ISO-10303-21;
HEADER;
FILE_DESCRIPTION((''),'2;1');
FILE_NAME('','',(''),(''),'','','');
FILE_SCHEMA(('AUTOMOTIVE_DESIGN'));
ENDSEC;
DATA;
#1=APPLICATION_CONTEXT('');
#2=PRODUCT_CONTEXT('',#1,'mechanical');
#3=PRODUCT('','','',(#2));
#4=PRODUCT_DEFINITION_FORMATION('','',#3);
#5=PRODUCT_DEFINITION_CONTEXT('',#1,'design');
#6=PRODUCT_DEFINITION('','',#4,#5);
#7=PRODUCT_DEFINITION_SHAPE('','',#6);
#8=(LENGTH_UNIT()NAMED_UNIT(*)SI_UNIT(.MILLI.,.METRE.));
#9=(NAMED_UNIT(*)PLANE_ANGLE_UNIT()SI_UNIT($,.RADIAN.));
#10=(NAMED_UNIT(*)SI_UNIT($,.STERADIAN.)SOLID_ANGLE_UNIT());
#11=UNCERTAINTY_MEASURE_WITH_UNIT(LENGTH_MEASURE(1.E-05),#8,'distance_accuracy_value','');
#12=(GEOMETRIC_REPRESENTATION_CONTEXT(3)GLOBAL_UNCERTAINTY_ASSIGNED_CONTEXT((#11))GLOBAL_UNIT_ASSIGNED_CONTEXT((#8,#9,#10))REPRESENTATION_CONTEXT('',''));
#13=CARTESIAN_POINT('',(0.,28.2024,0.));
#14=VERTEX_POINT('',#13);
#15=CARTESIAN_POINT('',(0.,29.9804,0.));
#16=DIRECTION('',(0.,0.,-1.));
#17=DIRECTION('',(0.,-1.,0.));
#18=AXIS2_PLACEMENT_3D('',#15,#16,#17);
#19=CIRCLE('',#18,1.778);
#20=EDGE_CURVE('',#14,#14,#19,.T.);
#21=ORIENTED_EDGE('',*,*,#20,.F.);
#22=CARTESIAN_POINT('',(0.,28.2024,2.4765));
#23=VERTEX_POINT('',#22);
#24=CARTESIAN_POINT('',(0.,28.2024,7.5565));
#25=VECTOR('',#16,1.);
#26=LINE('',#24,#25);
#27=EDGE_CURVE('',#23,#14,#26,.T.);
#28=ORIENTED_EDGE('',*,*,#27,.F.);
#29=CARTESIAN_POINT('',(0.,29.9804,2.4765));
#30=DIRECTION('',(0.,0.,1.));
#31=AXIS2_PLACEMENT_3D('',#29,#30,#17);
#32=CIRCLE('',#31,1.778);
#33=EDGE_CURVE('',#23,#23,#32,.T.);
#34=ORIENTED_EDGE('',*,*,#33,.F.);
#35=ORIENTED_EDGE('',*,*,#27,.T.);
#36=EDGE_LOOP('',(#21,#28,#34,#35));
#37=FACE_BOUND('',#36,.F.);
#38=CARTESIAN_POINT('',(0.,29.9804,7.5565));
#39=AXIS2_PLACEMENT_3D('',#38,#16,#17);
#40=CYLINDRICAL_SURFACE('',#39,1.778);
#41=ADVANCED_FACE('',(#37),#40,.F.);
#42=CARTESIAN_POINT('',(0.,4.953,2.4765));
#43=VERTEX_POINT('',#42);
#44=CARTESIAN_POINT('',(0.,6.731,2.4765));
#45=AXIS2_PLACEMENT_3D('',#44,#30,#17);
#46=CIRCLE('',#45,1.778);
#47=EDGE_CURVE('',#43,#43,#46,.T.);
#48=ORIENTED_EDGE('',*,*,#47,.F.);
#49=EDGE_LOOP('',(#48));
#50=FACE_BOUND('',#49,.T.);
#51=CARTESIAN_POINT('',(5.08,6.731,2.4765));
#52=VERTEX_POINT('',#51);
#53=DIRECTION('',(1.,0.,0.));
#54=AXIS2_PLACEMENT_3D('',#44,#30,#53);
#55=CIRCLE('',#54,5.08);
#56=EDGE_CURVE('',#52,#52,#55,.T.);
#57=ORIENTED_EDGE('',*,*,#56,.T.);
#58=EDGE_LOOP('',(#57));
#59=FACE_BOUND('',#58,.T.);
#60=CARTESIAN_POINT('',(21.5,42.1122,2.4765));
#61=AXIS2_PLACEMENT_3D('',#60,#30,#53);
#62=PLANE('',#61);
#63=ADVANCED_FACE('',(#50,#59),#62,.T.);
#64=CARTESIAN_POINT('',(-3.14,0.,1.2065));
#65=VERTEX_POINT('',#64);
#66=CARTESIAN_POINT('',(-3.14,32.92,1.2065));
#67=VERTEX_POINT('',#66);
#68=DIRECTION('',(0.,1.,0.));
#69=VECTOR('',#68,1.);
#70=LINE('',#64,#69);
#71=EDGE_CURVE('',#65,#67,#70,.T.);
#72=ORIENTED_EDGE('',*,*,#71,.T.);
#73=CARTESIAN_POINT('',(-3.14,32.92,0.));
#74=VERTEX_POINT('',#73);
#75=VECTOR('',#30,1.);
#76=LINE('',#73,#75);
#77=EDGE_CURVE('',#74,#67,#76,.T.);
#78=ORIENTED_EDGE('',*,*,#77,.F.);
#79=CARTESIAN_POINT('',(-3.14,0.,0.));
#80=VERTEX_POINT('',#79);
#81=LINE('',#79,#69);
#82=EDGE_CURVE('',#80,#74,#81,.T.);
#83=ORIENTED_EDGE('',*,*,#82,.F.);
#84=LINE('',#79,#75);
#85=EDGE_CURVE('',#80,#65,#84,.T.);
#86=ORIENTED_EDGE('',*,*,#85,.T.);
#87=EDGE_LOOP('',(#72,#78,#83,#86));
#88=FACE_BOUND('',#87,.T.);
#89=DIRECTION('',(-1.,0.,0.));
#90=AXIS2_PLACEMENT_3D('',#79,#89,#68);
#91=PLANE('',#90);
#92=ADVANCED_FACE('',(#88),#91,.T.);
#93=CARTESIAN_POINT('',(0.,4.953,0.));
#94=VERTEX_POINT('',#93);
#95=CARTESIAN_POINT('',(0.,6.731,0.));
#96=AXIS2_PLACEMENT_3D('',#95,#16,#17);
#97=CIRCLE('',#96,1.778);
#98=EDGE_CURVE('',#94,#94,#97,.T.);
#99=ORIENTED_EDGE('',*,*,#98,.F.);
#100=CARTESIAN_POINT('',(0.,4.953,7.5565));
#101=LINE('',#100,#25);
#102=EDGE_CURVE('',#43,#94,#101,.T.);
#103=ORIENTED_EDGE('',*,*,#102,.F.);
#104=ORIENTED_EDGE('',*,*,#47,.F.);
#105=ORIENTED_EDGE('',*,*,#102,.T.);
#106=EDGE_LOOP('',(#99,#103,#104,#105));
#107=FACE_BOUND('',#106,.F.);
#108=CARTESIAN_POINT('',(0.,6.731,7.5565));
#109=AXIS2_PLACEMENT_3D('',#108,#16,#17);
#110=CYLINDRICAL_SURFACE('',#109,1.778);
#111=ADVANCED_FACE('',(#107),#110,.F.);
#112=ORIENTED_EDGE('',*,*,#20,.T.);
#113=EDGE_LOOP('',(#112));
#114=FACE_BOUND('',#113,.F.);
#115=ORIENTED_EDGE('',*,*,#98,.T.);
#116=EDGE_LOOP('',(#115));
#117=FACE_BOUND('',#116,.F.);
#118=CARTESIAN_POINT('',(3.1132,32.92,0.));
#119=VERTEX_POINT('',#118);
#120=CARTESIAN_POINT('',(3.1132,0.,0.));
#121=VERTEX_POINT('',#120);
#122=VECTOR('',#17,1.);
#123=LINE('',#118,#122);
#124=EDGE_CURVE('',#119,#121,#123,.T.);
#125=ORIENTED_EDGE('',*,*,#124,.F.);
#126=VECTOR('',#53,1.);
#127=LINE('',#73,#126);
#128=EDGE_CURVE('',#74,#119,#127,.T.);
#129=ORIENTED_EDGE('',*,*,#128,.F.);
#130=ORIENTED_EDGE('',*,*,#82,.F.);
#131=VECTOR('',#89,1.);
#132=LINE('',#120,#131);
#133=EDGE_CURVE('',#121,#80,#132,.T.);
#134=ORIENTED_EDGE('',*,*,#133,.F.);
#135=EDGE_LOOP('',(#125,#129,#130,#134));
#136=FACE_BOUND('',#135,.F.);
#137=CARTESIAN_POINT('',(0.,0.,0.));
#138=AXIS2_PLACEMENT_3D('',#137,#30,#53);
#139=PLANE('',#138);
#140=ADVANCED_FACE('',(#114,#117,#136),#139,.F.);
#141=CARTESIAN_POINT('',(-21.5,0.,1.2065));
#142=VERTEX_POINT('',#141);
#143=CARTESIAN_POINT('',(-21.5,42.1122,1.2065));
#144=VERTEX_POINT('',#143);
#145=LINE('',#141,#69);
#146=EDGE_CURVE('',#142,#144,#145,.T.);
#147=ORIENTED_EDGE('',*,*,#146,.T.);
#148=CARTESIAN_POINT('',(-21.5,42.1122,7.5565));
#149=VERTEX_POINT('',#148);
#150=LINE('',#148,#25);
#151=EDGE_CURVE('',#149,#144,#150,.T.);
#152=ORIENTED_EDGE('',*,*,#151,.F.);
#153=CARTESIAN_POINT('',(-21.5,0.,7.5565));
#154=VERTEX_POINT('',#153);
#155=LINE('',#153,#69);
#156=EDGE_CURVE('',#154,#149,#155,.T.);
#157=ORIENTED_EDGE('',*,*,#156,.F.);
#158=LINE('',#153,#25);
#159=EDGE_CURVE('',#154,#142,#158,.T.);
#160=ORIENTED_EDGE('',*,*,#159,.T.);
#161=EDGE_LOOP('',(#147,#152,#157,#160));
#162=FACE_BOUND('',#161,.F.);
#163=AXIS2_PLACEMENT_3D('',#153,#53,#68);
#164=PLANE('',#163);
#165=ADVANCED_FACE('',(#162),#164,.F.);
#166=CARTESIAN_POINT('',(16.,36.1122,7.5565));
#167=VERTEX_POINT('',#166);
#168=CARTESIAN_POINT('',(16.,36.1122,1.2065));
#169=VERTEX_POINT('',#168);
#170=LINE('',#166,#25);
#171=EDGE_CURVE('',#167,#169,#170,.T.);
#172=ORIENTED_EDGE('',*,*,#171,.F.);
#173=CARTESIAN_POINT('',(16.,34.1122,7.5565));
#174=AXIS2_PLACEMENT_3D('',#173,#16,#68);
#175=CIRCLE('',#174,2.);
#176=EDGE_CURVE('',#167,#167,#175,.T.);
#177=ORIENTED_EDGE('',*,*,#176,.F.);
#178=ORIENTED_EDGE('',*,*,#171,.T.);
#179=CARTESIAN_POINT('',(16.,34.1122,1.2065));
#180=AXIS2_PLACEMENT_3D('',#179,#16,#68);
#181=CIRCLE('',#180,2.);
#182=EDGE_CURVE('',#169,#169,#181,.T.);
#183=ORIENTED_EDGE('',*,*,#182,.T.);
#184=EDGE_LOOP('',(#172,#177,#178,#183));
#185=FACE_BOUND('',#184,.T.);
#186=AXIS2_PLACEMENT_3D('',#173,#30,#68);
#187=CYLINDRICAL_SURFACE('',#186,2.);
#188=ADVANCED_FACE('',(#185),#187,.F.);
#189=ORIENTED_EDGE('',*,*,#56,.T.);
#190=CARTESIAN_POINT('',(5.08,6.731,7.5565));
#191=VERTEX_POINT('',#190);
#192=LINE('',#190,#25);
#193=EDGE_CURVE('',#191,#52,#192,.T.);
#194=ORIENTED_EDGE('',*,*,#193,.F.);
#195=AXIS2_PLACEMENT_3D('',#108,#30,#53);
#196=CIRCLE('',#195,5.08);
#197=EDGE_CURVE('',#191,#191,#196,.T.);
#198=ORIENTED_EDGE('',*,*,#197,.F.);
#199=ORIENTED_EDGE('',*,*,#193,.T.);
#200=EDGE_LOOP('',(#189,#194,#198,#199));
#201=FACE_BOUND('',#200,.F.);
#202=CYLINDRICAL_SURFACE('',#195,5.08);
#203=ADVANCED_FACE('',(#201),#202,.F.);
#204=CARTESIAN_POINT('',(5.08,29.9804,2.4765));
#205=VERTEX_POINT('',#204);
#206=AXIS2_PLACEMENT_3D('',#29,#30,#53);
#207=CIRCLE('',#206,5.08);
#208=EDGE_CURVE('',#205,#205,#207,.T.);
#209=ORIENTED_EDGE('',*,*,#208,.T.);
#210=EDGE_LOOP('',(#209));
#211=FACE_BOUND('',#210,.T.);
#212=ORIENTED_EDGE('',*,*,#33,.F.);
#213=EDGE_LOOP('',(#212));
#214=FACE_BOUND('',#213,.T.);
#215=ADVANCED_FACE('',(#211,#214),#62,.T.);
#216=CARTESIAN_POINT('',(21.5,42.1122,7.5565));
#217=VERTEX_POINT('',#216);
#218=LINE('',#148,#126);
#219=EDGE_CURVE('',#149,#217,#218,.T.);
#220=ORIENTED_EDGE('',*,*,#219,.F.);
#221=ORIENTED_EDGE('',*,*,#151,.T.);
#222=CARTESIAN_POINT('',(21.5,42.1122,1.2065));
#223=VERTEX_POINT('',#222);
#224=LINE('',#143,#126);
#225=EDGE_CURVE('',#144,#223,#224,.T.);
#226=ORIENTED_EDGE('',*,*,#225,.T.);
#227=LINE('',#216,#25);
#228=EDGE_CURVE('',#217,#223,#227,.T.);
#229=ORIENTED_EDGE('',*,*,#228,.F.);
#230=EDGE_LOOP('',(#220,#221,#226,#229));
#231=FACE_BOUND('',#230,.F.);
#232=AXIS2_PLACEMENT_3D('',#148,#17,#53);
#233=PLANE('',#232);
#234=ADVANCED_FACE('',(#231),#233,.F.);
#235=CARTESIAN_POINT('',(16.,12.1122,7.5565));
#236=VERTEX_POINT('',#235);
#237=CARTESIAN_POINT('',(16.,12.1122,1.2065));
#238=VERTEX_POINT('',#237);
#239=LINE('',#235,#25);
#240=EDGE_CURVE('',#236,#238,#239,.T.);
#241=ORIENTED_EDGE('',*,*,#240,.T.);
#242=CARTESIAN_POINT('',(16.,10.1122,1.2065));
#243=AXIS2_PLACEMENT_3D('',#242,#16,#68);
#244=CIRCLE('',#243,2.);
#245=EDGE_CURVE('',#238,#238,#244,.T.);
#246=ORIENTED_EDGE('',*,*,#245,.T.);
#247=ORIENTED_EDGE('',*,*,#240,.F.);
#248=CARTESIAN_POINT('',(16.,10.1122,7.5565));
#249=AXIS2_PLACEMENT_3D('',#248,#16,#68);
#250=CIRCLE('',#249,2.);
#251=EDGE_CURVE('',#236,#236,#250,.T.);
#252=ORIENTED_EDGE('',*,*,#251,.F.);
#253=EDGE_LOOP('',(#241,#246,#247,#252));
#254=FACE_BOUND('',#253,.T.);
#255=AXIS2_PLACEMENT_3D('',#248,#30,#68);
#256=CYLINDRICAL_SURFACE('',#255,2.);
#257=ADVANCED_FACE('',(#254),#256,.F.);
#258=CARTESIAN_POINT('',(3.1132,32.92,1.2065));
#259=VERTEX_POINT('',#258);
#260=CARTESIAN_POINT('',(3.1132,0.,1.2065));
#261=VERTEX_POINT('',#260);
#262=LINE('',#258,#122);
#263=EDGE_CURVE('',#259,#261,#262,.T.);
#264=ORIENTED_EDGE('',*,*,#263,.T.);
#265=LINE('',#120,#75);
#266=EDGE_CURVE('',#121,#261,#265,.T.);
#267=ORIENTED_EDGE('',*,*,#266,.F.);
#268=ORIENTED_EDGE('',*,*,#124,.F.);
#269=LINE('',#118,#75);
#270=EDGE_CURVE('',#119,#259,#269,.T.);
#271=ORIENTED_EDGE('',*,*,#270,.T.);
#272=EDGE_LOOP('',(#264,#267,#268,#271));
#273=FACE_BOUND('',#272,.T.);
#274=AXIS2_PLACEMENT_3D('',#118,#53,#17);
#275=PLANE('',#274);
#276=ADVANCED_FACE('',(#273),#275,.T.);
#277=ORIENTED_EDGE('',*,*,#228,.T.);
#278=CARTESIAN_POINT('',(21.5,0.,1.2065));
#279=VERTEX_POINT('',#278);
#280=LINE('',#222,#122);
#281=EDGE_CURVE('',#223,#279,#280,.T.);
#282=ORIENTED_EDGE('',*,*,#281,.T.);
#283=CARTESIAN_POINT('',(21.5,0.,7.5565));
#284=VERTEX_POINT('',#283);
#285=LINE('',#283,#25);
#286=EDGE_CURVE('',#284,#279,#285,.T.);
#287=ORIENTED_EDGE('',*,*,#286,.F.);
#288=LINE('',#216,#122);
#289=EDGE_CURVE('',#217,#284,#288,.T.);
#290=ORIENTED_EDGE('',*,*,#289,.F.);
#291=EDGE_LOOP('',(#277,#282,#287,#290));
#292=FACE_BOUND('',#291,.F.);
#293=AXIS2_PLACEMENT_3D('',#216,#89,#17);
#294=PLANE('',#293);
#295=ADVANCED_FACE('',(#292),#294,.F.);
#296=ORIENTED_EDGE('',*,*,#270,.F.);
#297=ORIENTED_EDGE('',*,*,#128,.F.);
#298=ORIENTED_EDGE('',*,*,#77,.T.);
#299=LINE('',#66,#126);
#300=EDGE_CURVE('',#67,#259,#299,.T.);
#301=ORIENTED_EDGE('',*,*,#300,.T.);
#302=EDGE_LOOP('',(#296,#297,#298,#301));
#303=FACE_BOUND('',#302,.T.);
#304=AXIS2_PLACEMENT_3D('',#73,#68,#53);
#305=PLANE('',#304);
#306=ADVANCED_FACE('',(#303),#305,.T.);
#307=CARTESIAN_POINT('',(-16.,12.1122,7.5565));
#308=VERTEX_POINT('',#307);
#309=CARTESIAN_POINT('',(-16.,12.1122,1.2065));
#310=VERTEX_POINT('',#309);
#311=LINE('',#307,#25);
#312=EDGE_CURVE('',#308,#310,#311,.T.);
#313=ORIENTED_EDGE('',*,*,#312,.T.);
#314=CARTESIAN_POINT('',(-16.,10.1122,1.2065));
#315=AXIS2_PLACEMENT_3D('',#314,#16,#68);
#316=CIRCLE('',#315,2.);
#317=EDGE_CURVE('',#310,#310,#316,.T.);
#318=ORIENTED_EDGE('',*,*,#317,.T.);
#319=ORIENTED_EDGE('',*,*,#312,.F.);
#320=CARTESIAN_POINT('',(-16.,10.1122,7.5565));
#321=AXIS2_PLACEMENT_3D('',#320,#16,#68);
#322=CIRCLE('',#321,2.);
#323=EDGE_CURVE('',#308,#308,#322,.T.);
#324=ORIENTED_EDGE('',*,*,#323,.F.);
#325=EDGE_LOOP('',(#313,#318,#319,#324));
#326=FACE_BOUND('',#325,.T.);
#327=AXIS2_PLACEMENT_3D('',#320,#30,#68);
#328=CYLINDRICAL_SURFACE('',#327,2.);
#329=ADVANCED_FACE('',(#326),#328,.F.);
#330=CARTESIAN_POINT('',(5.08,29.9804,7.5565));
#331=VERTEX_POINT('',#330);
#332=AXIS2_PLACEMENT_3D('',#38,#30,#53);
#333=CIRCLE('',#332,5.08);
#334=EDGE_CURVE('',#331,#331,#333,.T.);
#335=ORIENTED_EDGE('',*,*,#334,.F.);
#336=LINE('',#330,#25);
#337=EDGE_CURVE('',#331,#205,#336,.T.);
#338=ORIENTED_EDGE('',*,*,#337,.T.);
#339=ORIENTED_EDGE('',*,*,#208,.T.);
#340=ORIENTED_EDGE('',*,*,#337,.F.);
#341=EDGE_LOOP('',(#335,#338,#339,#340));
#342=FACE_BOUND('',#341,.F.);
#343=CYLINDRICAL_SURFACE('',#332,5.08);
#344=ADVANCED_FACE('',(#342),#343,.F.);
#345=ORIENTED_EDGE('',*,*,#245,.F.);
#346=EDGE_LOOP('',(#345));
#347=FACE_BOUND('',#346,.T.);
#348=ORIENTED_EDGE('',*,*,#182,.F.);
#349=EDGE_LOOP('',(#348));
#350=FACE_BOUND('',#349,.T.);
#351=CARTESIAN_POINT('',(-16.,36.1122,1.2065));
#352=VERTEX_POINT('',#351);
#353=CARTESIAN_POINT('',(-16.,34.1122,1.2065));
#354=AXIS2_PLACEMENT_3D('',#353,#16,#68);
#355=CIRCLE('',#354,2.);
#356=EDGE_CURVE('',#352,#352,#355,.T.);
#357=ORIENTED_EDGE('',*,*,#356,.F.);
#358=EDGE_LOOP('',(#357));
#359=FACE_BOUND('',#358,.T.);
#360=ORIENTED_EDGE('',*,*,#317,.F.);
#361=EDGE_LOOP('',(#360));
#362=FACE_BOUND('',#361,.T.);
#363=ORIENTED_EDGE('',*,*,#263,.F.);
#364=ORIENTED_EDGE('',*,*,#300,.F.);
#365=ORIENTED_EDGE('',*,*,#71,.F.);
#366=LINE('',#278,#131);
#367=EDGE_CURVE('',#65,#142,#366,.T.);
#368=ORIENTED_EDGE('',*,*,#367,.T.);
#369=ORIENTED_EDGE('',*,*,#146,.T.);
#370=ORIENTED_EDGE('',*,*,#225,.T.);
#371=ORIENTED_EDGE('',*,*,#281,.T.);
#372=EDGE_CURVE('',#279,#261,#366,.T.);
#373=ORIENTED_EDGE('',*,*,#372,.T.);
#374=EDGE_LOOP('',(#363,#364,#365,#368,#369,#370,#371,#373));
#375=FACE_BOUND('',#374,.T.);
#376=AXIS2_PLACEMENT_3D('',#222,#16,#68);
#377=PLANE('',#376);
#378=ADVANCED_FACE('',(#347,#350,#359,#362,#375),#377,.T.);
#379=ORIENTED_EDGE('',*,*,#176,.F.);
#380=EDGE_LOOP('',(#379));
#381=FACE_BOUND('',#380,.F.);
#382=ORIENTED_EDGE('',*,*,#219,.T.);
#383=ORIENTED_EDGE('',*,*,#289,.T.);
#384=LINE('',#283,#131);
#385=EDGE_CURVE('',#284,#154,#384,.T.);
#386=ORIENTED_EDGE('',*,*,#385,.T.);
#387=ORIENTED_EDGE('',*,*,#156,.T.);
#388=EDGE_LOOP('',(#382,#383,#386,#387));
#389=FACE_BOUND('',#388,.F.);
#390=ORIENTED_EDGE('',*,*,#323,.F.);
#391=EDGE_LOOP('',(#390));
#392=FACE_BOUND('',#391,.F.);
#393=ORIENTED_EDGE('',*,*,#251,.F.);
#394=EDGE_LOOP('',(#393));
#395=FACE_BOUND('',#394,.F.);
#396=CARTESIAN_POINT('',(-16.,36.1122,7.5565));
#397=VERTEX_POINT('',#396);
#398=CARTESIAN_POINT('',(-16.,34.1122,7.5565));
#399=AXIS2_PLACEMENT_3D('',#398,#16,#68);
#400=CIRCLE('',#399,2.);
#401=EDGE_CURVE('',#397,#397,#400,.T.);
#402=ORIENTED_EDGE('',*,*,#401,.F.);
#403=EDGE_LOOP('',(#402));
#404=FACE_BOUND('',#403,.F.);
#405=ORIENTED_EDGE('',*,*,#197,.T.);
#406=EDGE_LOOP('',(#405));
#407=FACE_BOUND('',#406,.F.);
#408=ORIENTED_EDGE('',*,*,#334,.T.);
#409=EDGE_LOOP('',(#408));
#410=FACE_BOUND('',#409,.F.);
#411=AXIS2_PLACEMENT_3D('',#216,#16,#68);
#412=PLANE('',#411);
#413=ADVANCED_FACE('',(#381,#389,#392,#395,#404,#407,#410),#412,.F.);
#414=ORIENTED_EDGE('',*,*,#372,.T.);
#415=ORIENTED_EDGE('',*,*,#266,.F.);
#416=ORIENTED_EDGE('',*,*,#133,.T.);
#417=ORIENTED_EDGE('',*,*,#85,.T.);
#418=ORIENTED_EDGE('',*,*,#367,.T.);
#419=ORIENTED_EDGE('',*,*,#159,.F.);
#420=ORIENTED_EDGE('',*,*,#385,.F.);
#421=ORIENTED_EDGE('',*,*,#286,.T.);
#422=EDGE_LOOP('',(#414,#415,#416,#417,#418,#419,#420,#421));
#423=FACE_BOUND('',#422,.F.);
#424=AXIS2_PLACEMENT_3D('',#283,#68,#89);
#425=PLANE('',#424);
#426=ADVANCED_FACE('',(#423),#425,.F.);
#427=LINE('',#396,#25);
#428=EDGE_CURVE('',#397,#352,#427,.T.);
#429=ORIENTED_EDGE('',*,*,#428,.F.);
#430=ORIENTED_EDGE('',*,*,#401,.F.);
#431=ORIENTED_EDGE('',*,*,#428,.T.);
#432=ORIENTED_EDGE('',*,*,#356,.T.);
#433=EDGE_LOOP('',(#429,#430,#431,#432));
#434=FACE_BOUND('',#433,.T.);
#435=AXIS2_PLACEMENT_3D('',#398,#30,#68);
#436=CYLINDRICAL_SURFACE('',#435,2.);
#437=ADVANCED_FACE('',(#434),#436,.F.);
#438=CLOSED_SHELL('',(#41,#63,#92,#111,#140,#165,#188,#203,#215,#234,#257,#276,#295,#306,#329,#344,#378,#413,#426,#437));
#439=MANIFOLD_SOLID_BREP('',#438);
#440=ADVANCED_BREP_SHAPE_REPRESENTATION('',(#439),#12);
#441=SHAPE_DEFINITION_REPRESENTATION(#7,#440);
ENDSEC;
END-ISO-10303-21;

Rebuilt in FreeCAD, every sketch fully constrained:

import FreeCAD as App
import Part
import Sketcher

V = App.Vector
Q = App.Units.Quantity


def add_polygon(sketch, points):
    """Adds a closed chain of lines whose ends are joined by coincident constraints."""
    first, n = sketch.GeometryCount, len(points)
    for a, b in zip(points, points[1:] + points[:1]):
        sketch.addGeometry(Part.LineSegment(App.Vector(*a, 0), App.Vector(*b, 0)), False)
    for i in range(n):
        sketch.addConstraint(Sketcher.Constraint("Coincident", first + i, 2, first + (i + 1) % n, 1))

doc = App.newDocument("Part")
params = doc.addObject("Spreadsheet::Sheet", "Params")
for row, (alias, value) in enumerate([
    ("pad1_length", "0.25 in"),
    ("pad2_length", "0.0475 in"),
    ("sketch3_diameter", "0.14 in"),
    ("hole_diameter", "0.14 in"),
    ("sketch4_diameter", "0.4 in"),
    ("sketch4_diameter2", "0.14 in"),
    ("pocket1_length", "0.2 in"),
], start=1):
    params.set(f"A{row}", alias)
    params.set(f"B{row}", "=" + value)
    params.setAlias(f"B{row}", alias)

body = doc.addObject("PartDesign::Body", "Body")

# Sketch on XY plane
sketch1 = body.newObject("Sketcher::SketchObject", "Sketch")
sketch1.AttachmentSupport = (doc.getObject("XY_Plane"), [""])
sketch1.MapMode = "FlatFace"
sketch1.AttachmentOffset = App.Placement(V(0, 0, 0.2975 * 25.4), App.Rotation())
add_polygon(sketch1, [(21.5, 0), (-21.5, 0), (-21.5, 42.1122), (21.5, 42.1122)])  # lines 0-3
sketch1.addGeometry(Part.Circle(V(-16, 10.1122, 0), V(0, 0, 1), 2), False)  # 4
sketch1.addGeometry(Part.Circle(V(-16, 34.1122, 0), V(0, 0, 1), 2), False)  # 5
sketch1.addGeometry(Part.Circle(V(16, 10.1122, 0), V(0, 0, 1), 2), False)  # 6
sketch1.addGeometry(Part.Circle(V(16, 34.1122, 0), V(0, 0, 1), 2), False)  # 7
sketch1.addConstraint([
    Sketcher.Constraint("Horizontal", 0),
    Sketcher.Constraint("Vertical", 1),
    Sketcher.Constraint("Horizontal", 2),
    Sketcher.Constraint("Vertical", 3),
    Sketcher.Constraint("Equal", 4, 5),
    Sketcher.Constraint("Equal", 5, 6),
    Sketcher.Constraint("Equal", 6, 7),
    Sketcher.Constraint("Symmetric", 0, 2, 3, 2, -1, 1),
    Sketcher.Constraint("Symmetric", 4, 3, 6, 3, -2),
    Sketcher.Constraint("Symmetric", 5, 3, 7, 3, -2),
    Sketcher.Constraint("Vertical", 4, 3, 5, 3),
    Sketcher.Constraint("Diameter", 4, Q("4 mm")),
    Sketcher.Constraint("DistanceY", -1, 1, 5, 3, Q("1.343 in")),
    Sketcher.Constraint("DistanceX", 0, 2, 0, 1, Q("43 mm")),
    Sketcher.Constraint("DistanceY", 1, 1, 1, 2, Q("42.1122 mm")),
    Sketcher.Constraint("DistanceX", 4, 3, -1, 1, Q("16 mm")),
    Sketcher.Constraint("DistanceY", -1, 1, 4, 3, Q("10.1122 mm")),
])
pad1 = body.newObject("PartDesign::Pad", "Pad")
pad1.Profile = sketch1
pad1.setExpression("Length", "Params.pad1_length")
pad1.Reversed = True

# Sketch on XY plane
sketch2 = body.newObject("Sketcher::SketchObject", "Sketch001")
sketch2.AttachmentSupport = (doc.getObject("XY_Plane"), [""])
sketch2.MapMode = "FlatFace"
add_polygon(sketch2, [(-3.14, 0), (3.1132, 0), (3.1132, 32.92), (-3.14, 32.92)])  # lines 0-3
sketch2.addConstraint([
    Sketcher.Constraint("Horizontal", 0),
    Sketcher.Constraint("Vertical", 1),
    Sketcher.Constraint("Horizontal", 2),
    Sketcher.Constraint("Vertical", 3),
    Sketcher.Constraint("PointOnObject", 0, 2, -1),
    Sketcher.Constraint("DistanceX", 0, 1, 0, 2, Q("0.2462 in")),
    Sketcher.Constraint("DistanceY", 1, 1, 1, 2, Q("32.92 mm")),
    Sketcher.Constraint("DistanceX", -1, 1, 0, 2, Q("3.1132 mm")),
])
pad2 = body.newObject("PartDesign::Pad", "Pad001")
pad2.Profile = sketch2
pad2.setExpression("Length", "Params.pad2_length")

# Sketch on XY plane
sketch3 = body.newObject("Sketcher::SketchObject", "Sketch002")
sketch3.AttachmentSupport = (doc.getObject("XY_Plane"), [""])
sketch3.MapMode = "FlatFace"
sketch3.AttachmentOffset = App.Placement(V(0, 0, 0.2975 * 25.4), App.Rotation())
sketch3.addGeometry([
    Part.Circle(V(0, 6.731, 0), V(0, 0, 1), 1.778),
    Part.Circle(V(0, 29.9804, 0), V(0, 0, 1), 1.778),
], False)
sketch3.addConstraint([
    Sketcher.Constraint("Equal", 0, 1),
    Sketcher.Constraint("PointOnObject", 0, 3, -2),
    Sketcher.Constraint("PointOnObject", 1, 3, -2),
    Sketcher.Constraint("Diameter", 0, Q("0.14 in")),
    Sketcher.Constraint("DistanceY", -1, 1, 0, 3, Q("0.265 in")),
    Sketcher.Constraint("DistanceY", -1, 1, 1, 3, Q("29.9804 mm")),
])
sketch3.setExpression("Constraints[3]", "Params.sketch3_diameter")
doc.recompute()
hole = body.newObject("PartDesign::Hole", "Hole")
hole.Profile = sketch3
hole.ThreadType = "None"
hole.setExpression("Diameter", "Params.hole_diameter")
hole.DepthType = "ThroughAll"

# Sketch on XY plane
sketch4 = body.newObject("Sketcher::SketchObject", "Sketch003")
sketch4.AttachmentSupport = (doc.getObject("XY_Plane"), [""])
sketch4.MapMode = "FlatFace"
sketch4.AttachmentOffset = App.Placement(V(0, 0, 0.2975 * 25.4), App.Rotation())
sketch4.addGeometry([
    Part.Circle(V(0, 29.9804, 0), V(0, 0, 1), 5.08),
    Part.Circle(V(0, 29.9804, 0), V(0, 0, 1), 1.778),
    Part.Circle(V(0, 6.731, 0), V(0, 0, 1), 5.08),
    Part.Circle(V(0, 6.731, 0), V(0, 0, 1), 1.778),
], False)
sketch4.addConstraint([
    Sketcher.Constraint("Coincident", 1, 3, 0, 3),
    Sketcher.Constraint("Coincident", 3, 3, 2, 3),
    Sketcher.Constraint("Equal", 0, 2),
    Sketcher.Constraint("Equal", 1, 3),
    Sketcher.Constraint("PointOnObject", 0, 3, -2),
    Sketcher.Constraint("PointOnObject", 2, 3, -2),
    Sketcher.Constraint("Diameter", 0, Q("0.4 in")),
    Sketcher.Constraint("Diameter", 1, Q("0.14 in")),
    Sketcher.Constraint("DistanceY", -1, 1, 2, 3, Q("0.265 in")),
    Sketcher.Constraint("DistanceY", -1, 1, 0, 3, Q("29.9804 mm")),
])
sketch4.setExpression("Constraints[6]", "Params.sketch4_diameter")
sketch4.setExpression("Constraints[7]", "Params.sketch4_diameter2")
pocket1 = body.newObject("PartDesign::Pocket", "Pocket")
pocket1.Profile = sketch4
pocket1.setExpression("Length", "Params.pocket1_length")

doc.recompute()
